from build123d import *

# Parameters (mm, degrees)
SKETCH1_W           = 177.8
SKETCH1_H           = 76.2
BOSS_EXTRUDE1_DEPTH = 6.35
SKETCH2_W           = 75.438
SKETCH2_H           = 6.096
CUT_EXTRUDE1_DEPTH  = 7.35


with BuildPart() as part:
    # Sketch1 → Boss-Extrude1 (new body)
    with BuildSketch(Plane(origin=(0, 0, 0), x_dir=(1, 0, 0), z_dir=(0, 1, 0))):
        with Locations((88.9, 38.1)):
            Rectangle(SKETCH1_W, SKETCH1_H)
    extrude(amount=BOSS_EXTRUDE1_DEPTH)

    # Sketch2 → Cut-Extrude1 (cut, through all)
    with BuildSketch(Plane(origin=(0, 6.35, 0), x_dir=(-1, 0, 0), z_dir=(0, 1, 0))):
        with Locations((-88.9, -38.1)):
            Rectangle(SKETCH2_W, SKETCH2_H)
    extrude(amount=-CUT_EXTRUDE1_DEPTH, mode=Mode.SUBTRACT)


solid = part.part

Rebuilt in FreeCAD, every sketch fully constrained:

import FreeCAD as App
import Part
import Sketcher
from FreeCAD import Vector
Q = App.Units.Quantity

doc = App.newDocument("Part")
body = doc.addObject("PartDesign::Body", "Body")

sketch1 = body.newObject("Sketcher::SketchObject", "Sketch")
sketch1.AttachmentSupport = (doc.getObject("XZ_Plane"), [""])
sketch1.MapMode = "FlatFace"
sketch1.addGeometry([
    Part.LineSegment(Vector(0, -76, 0), Vector(0, 0, 0)),
    Part.LineSegment(Vector(0, 0, 0), Vector(178, 0, 0)),
    Part.LineSegment(Vector(178, 0, 0), Vector(178, -76, 0)),
    Part.LineSegment(Vector(178, -76, 0), Vector(0, -76, 0)),
], False)
sketch1.addConstraint([
    Sketcher.Constraint("Coincident", 0, 2, 1, 1),
    Sketcher.Constraint("Coincident", 1, 2, 2, 1),
    Sketcher.Constraint("Coincident", 2, 2, 3, 1),
    Sketcher.Constraint("Coincident", 3, 2, 0, 1),
    Sketcher.Constraint("Vertical", 0),
    Sketcher.Constraint("Horizontal", 1),
    Sketcher.Constraint("Vertical", 2),
    Sketcher.Constraint("Horizontal", 3),
    Sketcher.Constraint("Coincident", 0, 2, -1, 1),
    Sketcher.Constraint("DistanceX", 1, 1, 1, 2, Q("7 in")),
    Sketcher.Constraint("DistanceY", 0, 1, 0, 2, Q("3 in")),
])
pad1 = body.newObject("PartDesign::Pad", "Pad")
pad1.Profile = sketch1
pad1.Length = Q("0.25 in")
pad1.Reversed = True

sketch2 = body.newObject("Sketcher::SketchObject", "Sketch001")
sketch2.AttachmentSupport = (doc.getObject("XZ_Plane"), [""])
sketch2.MapMode = "FlatFace"
sketch2.AttachmentOffset = App.Placement(Vector(0, 0, -0.25 * 25.4), App.Rotation())
sketch2.addGeometry([
    Part.LineSegment(Vector(127, -35, 0), Vector(127, -41, 0)),
    Part.LineSegment(Vector(127, -41, 0), Vector(51, -41, 0)),
    Part.LineSegment(Vector(51, -41, 0), Vector(51, -35, 0)),
    Part.LineSegment(Vector(51, -35, 0), Vector(127, -35, 0)),
], False)
sketch2.addConstraint([
    Sketcher.Constraint("Coincident", 0, 2, 1, 1),
    Sketcher.Constraint("Coincident", 1, 2, 2, 1),
    Sketcher.Constraint("Coincident", 2, 2, 3, 1),
    Sketcher.Constraint("Coincident", 3, 2, 0, 1),
    Sketcher.Constraint("Vertical", 0),
    Sketcher.Constraint("Horizontal", 1),
    Sketcher.Constraint("Vertical", 2),
    Sketcher.Constraint("Horizontal", 3),
    Sketcher.Constraint("DistanceX", 1, 2, 1, 1, Q("2.97 in")),
    Sketcher.Constraint("DistanceY", 0, 2, 0, 1, Q("0.24 in")),
    Sketcher.Constraint("DistanceY", 0, 2, -1, 1, Q("1.62 in")),
    Sketcher.Constraint("DistanceX", -1, 1, 0, 2, Q("4.985 in")),
])
pocket1 = body.newObject("PartDesign::Pocket", "Pocket")
pocket1.Profile = sketch2
pocket1.Type = "ThroughAll"
pocket1.Reversed = True

doc.recompute()
